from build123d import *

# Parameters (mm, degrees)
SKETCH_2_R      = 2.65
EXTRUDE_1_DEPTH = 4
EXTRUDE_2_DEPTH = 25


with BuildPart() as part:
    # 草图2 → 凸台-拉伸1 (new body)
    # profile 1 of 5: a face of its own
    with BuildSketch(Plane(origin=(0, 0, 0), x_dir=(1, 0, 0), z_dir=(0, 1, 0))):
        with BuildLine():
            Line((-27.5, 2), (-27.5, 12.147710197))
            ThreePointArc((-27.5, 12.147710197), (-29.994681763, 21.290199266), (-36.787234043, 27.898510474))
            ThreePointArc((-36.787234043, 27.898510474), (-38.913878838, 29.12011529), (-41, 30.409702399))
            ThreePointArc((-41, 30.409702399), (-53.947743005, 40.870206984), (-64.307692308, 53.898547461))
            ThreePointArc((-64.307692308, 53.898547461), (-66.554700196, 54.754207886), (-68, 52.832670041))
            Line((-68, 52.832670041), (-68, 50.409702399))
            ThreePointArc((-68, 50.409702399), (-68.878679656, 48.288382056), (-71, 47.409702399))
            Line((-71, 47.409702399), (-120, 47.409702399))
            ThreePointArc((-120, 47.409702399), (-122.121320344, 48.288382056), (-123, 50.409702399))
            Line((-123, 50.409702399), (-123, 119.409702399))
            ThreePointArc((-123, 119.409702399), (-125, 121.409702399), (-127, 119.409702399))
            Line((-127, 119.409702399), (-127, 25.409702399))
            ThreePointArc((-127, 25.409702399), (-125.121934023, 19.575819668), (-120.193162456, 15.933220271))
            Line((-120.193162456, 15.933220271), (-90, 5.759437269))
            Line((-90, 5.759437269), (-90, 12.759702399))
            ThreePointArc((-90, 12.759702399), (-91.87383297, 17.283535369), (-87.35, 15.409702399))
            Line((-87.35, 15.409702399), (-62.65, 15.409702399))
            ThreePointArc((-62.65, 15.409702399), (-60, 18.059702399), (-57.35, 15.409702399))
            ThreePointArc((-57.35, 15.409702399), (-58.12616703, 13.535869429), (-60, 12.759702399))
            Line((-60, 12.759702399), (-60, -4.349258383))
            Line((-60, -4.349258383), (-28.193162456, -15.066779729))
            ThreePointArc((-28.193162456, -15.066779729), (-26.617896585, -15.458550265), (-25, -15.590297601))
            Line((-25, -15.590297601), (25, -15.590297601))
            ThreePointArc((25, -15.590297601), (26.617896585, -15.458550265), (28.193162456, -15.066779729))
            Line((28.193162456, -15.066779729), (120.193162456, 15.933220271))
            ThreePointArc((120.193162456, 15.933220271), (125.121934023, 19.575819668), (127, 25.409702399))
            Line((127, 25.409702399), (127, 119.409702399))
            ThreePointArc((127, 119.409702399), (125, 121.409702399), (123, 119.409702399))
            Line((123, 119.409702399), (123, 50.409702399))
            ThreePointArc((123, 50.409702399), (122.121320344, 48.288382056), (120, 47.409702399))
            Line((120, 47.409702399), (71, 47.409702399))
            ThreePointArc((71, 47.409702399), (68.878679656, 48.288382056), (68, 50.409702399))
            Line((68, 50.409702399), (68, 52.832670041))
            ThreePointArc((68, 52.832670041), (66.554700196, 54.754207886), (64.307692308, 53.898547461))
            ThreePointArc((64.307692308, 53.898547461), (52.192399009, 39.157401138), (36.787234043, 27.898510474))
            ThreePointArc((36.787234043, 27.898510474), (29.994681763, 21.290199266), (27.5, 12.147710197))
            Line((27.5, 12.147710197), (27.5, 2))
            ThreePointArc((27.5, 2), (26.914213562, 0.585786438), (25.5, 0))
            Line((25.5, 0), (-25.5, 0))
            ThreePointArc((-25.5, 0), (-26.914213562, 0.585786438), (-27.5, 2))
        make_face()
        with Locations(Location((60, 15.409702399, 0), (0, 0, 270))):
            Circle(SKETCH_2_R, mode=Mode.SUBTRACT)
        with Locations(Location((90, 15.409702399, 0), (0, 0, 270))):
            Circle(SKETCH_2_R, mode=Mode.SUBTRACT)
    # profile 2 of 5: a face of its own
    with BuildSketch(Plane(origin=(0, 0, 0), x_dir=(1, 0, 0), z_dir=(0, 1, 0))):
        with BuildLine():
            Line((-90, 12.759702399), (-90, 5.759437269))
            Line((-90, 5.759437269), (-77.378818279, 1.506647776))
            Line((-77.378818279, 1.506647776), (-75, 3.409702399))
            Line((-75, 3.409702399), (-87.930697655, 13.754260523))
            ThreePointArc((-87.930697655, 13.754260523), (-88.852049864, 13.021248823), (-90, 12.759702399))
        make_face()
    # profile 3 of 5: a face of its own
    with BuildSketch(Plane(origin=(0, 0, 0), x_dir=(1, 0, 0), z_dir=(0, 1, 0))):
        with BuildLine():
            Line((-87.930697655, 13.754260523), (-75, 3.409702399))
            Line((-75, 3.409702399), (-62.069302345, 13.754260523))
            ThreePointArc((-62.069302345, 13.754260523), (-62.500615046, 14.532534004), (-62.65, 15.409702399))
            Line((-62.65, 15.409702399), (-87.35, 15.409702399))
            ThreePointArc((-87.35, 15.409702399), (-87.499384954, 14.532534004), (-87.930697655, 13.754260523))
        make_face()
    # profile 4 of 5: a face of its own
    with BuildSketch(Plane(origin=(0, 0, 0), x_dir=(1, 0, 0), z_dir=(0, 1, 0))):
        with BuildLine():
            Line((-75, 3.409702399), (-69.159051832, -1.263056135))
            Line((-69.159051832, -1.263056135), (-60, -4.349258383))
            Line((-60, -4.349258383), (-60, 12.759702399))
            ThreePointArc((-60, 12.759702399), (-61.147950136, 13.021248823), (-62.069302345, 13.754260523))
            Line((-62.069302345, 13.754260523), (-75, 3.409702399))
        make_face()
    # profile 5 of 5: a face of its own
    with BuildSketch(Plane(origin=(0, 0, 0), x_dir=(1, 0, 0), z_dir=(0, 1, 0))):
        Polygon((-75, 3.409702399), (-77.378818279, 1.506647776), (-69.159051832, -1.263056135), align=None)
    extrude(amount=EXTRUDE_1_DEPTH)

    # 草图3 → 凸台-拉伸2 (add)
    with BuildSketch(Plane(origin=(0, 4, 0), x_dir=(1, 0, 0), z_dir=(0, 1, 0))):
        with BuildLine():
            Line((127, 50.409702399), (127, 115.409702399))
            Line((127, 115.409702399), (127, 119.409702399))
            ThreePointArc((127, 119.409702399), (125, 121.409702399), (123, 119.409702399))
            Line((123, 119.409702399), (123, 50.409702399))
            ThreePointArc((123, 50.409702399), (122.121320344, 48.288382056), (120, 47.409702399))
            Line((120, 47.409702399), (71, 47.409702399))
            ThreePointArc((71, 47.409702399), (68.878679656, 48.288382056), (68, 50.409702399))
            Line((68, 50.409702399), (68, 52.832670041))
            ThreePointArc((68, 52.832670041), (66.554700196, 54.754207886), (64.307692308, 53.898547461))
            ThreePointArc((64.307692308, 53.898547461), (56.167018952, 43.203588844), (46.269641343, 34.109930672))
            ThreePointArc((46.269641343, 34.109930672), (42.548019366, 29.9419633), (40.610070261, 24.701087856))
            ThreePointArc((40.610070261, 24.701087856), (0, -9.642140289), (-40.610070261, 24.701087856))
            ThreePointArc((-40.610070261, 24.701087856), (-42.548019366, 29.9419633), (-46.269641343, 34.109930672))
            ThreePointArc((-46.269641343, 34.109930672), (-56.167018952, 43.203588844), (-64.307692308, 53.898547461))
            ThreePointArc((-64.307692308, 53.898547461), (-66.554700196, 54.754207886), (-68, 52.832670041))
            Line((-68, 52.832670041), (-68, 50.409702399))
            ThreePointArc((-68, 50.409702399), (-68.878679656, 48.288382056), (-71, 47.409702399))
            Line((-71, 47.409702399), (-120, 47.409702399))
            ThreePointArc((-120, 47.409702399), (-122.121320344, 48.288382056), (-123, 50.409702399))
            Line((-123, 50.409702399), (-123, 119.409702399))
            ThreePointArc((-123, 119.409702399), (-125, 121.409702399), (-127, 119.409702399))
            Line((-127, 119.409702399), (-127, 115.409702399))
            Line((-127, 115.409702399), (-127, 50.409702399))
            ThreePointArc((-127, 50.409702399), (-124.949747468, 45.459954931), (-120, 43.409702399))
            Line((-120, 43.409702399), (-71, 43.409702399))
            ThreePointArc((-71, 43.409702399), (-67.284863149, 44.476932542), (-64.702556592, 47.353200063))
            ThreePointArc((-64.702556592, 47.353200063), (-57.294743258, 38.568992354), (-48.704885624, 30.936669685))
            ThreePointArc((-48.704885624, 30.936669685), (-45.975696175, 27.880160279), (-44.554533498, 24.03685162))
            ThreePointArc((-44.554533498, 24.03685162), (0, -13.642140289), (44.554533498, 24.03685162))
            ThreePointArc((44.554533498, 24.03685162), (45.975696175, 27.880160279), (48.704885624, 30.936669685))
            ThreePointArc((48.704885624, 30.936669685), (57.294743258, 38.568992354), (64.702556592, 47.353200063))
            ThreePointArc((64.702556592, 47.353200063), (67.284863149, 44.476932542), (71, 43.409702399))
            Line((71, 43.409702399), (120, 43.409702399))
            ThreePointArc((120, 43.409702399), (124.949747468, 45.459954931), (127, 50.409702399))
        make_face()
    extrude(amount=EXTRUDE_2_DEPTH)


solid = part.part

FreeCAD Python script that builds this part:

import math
import FreeCAD as App
import Part
import Sketcher

V = App.Vector
Q = App.Units.Quantity

doc = App.newDocument("Part")
params = doc.addObject("Spreadsheet::Sheet", "Params")
for row, (alias, value) in enumerate([
    ("sketch1_radius", "18 mm"),
    ("sketch1_radius2", "76 mm"),
    ("sketch1_radius3", "2 mm"),
    ("sketch1_radius4", "3 mm"),
    ("sketch1_radius5", "10 mm"),
    ("pad1_length", "4 mm"),
    ("sketch2_radius", "2 mm"),
    ("sketch2_radius2", "3 mm"),
    ("sketch2_radius3", "76 mm"),
    ("sketch2_radius4", "15 mm"),
    ("sketch2_radius5", "80 mm"),
    ("pad2_length", "25 mm"),
], start=1):
    params.set(f"A{row}", alias)
    params.set(f"B{row}", "=" + value)
    params.setAlias(f"B{row}", alias)

body = doc.addObject("PartDesign::Body", "Body")

sketch1 = body.newObject("Sketcher::SketchObject", "Sketch")
sketch1.AttachmentSupport = (doc.getObject("XZ_Plane"), [""])
sketch1.MapMode = "FlatFace"
sketch1.addGeometry([
    Part.LineSegment(V(-27.5, -2, 0), V(-27.5, -12.1, 0)),
    Part.ArcOfCircle(Part.Circle(V(-45.5, -12.1, 0), V(0, 0, 1), 18), math.radians(-61), math.radians(0)),
    Part.ArcOfCircle(Part.Circle(V(0, -94.4, 0), V(0, 0, 1), 76), math.radians(118.95), math.radians(122.65)),
    Part.ArcOfCircle(Part.Circle(V(0, -94.4, 0), V(0, 0, 1), 76), math.radians(123), math.radians(148)),
    Part.ArcOfCircle(Part.Circle(V(-66, -52.8, 0), V(0, 0, 1), 2), math.radians(-180), math.radians(-32)),
    Part.LineSegment(V(-68, -52.8, 0), V(-68, -50.4, 0)),
    Part.ArcOfCircle(Part.Circle(V(-71, -50.4, 0), V(0, 0, 1), 3), math.radians(0), math.radians(90)),
    Part.LineSegment(V(-71, -47.4, 0), V(-120, -47.4, 0)),
    Part.ArcOfCircle(Part.Circle(V(-120, -50.4, 0), V(0, 0, 1), 3), math.radians(90), math.radians(180)),
    Part.LineSegment(V(-123, -50.4, 0), V(-123, -119.4, 0)),
    Part.ArcOfCircle(Part.Circle(V(-125, -119.4, 0), V(0, 0, 1), 2), math.radians(180), math.radians(360)),
    Part.LineSegment(V(-127, -119.4, 0), V(-127, -25.4, 0)),
    Part.ArcOfCircle(Part.Circle(V(-117, -25.4, 0), V(0, 0, 1), 10), math.radians(109), math.radians(180)),
    Part.LineSegment(V(-120.2, -15.9, 0), V(-90, -5.8, 0)),
    Part.LineSegment(V(-90, -5.8, 0), V(-77.4, -1.5, 0)),
    Part.LineSegment(V(-77.4, -1.5, 0), V(-69.2, 1.3, 0)),
    Part.LineSegment(V(-69.2, 1.3, 0), V(-60, 4.3, 0)),
    Part.LineSegment(V(-60, 4.3, 0), V(-28.2, 15.1, 0)),
    Part.ArcOfCircle(Part.Circle(V(-25, 5.6, 0), V(0, 0, 1), 10), math.radians(90), math.radians(108.62)),
    Part.LineSegment(V(-25, 15.6, 0), V(25, 15.6, 0)),
    Part.ArcOfCircle(Part.Circle(V(25, 5.6, 0), V(0, 0, 1), 10), math.radians(71.38), math.radians(90)),
    Part.LineSegment(V(28.2, 15.1, 0), V(120.2, -15.9, 0)),
    Part.ArcOfCircle(Part.Circle(V(117, -25.4, 0), V(0, 0, 1), 10), math.radians(0), math.radians(71)),
    Part.LineSegment(V(127, -25.4, 0), V(127, -119.4, 0)),
    Part.ArcOfCircle(Part.Circle(V(125, -119.4, 0), V(0, 0, 1), 2), math.radians(180), math.radians(360)),
    Part.LineSegment(V(123, -119.4, 0), V(123, -50.4, 0)),
    Part.ArcOfCircle(Part.Circle(V(120, -50.4, 0), V(0, 0, 1), 3), math.radians(0), math.radians(90)),
    Part.LineSegment(V(120, -47.4, 0), V(71, -47.4, 0)),
    Part.ArcOfCircle(Part.Circle(V(71, -50.4, 0), V(0, 0, 1), 3), math.radians(90), math.radians(180)),
    Part.LineSegment(V(68, -50.4, 0), V(68, -52.8, 0)),
    Part.ArcOfCircle(Part.Circle(V(66, -52.8, 0), V(0, 0, 1), 2), math.radians(-148), math.radians(0)),
    Part.ArcOfCircle(Part.Circle(V(0, -94.4, 0), V(0, 0, 1), 76), math.radians(32), math.radians(61)),
    Part.ArcOfCircle(Part.Circle(V(45.5, -12.1, 0), V(0, 0, 1), 18), math.radians(180), math.radians(241)),
    Part.LineSegment(V(27.5, -12.1, 0), V(27.5, -2, 0)),
    Part.ArcOfCircle(Part.Circle(V(25.5, -2, 0), V(0, 0, 1), 2), math.radians(0), math.radians(90)),
    Part.LineSegment(V(25.5, 0, 0), V(-25.5, 0, 0)),
    Part.ArcOfCircle(Part.Circle(V(-25.5, -2, 0), V(0, 0, 1), 2), math.radians(90), math.radians(180)),
    Part.ArcOfCircle(Part.Circle(V(-90, -15.4, 0), V(0, 0, 1), 2.6), math.radians(90), math.radians(360)),
    Part.ArcOfCircle(Part.Circle(V(-90, -15.4, 0), V(0, 0, 1), 2.6), math.radians(0), math.radians(39)),
    Part.ArcOfCircle(Part.Circle(V(-90, -15.4, 0), V(0, 0, 1), 2.7), math.radians(39), math.radians(90)),
    Part.ArcOfCircle(Part.Circle(V(-60, -15.4, 0), V(0, 0, 1), 2.6), math.radians(180), math.radians(360)),
    Part.ArcOfCircle(Part.Circle(V(-60, -15.4, 0), V(0, 0, 1), 2.6), math.radians(0), math.radians(90)),
    Part.ArcOfCircle(Part.Circle(V(-60, -15.4, 0), V(0, 0, 1), 2.7), math.radians(90), math.radians(141)),
    Part.ArcOfCircle(Part.Circle(V(-60, -15.4, 0), V(0, 0, 1), 2.6), math.radians(141), math.radians(180)),
    Part.Circle(V(60, -15.4, 0), V(0, 0, 1), 2.6),
    Part.Circle(V(90, -15.4, 0), V(0, 0, 1), 2.6),
], False)
sketch1.addConstraint([
    Sketcher.Constraint("Tangent", 0, 2, 1, 2),
    Sketcher.Constraint("Tangent", 1, 1, 2, 1),
    Sketcher.Constraint("Tangent", 2, 2, 3, 1),
    Sketcher.Constraint("Tangent", 3, 2, 4, 2),
    Sketcher.Constraint("Tangent", 4, 1, 5, 1),
    Sketcher.Constraint("Tangent", 5, 2, 6, 1),
    Sketcher.Constraint("Tangent", 6, 2, 7, 1),
    Sketcher.Constraint("Tangent", 7, 2, 8, 1),
    Sketcher.Constraint("Tangent", 8, 2, 9, 1),
    Sketcher.Constraint("Tangent", 9, 2, 10, 2),
    Sketcher.Constraint("Tangent", 10, 1, 11, 1),
    Sketcher.Constraint("Tangent", 11, 2, 12, 2),
    Sketcher.Constraint("Tangent", 12, 1, 13, 1),
    Sketcher.Constraint("Coincident", 13, 2, 14, 1),
    Sketcher.Constraint("Coincident", 14, 2, 15, 1),
    Sketcher.Constraint("Coincident", 15, 2, 16, 1),
    Sketcher.Constraint("Coincident", 16, 2, 17, 1),
    Sketcher.Constraint("Tangent", 17, 2, 18, 2),
    Sketcher.Constraint("Tangent", 18, 1, 19, 1),
    Sketcher.Constraint("Tangent", 19, 2, 20, 2),
    Sketcher.Constraint("Tangent", 20, 1, 21, 1),
    Sketcher.Constraint("Tangent", 21, 2, 22, 2),
    Sketcher.Constraint("Tangent", 22, 1, 23, 1),
    Sketcher.Constraint("Tangent", 23, 2, 24, 2),
    Sketcher.Constraint("Tangent", 24, 1, 25, 1),
    Sketcher.Constraint("Tangent", 25, 2, 26, 1),
    Sketcher.Constraint("Tangent", 26, 2, 27, 1),
    Sketcher.Constraint("Tangent", 27, 2, 28, 1),
    Sketcher.Constraint("Tangent", 28, 2, 29, 1),
    Sketcher.Constraint("Tangent", 29, 2, 30, 2),
    Sketcher.Constraint("Tangent", 30, 1, 31, 1),
    Sketcher.Constraint("Tangent", 31, 2, 32, 2),
    Sketcher.Constraint("Tangent", 32, 1, 33, 1),
    Sketcher.Constraint("Tangent", 33, 2, 34, 1),
    Sketcher.Constraint("Tangent", 34, 2, 35, 1),
    Sketcher.Constraint("Tangent", 35, 2, 36, 1),
    Sketcher.Constraint("Tangent", 36, 2, 0, 1),
    Sketcher.Constraint("Tangent", 37, 2, 38, 1),
    Sketcher.Constraint("Tangent", 38, 2, 39, 1),
    Sketcher.Constraint("Tangent", 39, 2, 37, 1),
    Sketcher.Constraint("Tangent", 40, 2, 41, 1),
    Sketcher.Constraint("Tangent", 41, 2, 42, 1),
    Sketcher.Constraint("Tangent", 42, 2, 43, 1),
    Sketcher.Constraint("Tangent", 43, 2, 40, 1),
    Sketcher.Constraint("Vertical", 0),
    Sketcher.Constraint("Vertical", 5),
    Sketcher.Constraint("Horizontal", 7),
    Sketcher.Constraint("Vertical", 9),
    Sketcher.Constraint("Vertical", 11),
    Sketcher.Constraint("Horizontal", 19),
    Sketcher.Constraint("Vertical", 23),
    Sketcher.Constraint("Vertical", 25),
    Sketcher.Constraint("Horizontal", 27),
    Sketcher.Constraint("Vertical", 29),
    Sketcher.Constraint("Vertical", 33),
    Sketcher.Constraint("Horizontal", 35),
    Sketcher.Constraint("Coincident", 31, 3, 2, 3),
    Sketcher.Constraint("Equal", 2, 3),
    Sketcher.Constraint("Equal", 6, 8),
    Sketcher.Constraint("Equal", 4, 10),
    Sketcher.Constraint("Equal", 12, 18),
    Sketcher.Constraint("Equal", 18, 20),
    Sketcher.Constraint("Equal", 20, 22),
    Sketcher.Constraint("Equal", 10, 24),
    Sketcher.Constraint("Equal", 8, 26),
    Sketcher.Constraint("Equal", 26, 28),
    Sketcher.Constraint("Equal", 24, 30),
    Sketcher.Constraint("Equal", 3, 31),
    Sketcher.Constraint("Equal", 1, 32),
    Sketcher.Constraint("Equal", 30, 34),
    Sketcher.Constraint("Equal", 34, 36),
    Sketcher.Constraint("Equal", 39, 40),
    Sketcher.Constraint("Equal", 40, 41),
    Sketcher.Constraint("Equal", 43, 44),
    Sketcher.Constraint("Equal", 44, 45),
    Sketcher.Constraint("Symmetric", 34, 2, 35, 2, -1, 1),
    Sketcher.Constraint("Symmetric", 12, 3, 22, 3, -2),
    Sketcher.Constraint("Symmetric", 6, 3, 28, 3, -2),
    Sketcher.Constraint("Symmetric", 40, 3, 44, 3, -2),
    Sketcher.Constraint("Symmetric", 37, 3, 45, 3, -2),
    Sketcher.Constraint("Symmetric", 17, 2, 20, 1, -2),
    Sketcher.Constraint("PointOnObject", 2, 3, -2),
    Sketcher.Constraint("Parallel", 13, 14),
    Sketcher.Constraint("Parallel", 14, 15),
    Sketcher.Constraint("Parallel", 15, 16),
    Sketcher.Constraint("Horizontal", 10, 3, 24, 3),
    Sketcher.Constraint("Horizontal", 39, 3, 40, 3),
    Sketcher.Constraint("Horizontal", 45, 3, 37, 2),
    Sketcher.Constraint("Horizontal", 37, 2, 40, 2),
    Sketcher.Constraint("Horizontal", 38, 2, 42, 2),
    Sketcher.Constraint("Horizontal", 40, 2, 43, 2),
    Sketcher.Constraint("Vertical", 39, 3, 13, 2),
    Sketcher.Constraint("Vertical", 43, 3, 16, 2),
    Sketcher.Constraint("Vertical", 13, 2, 39, 2),
    Sketcher.Constraint("Vertical", 16, 2, 41, 2),
    Sketcher.Constraint("Radius", 1, Q("18 mm")),
    Sketcher.Constraint("Radius", 2, Q("76 mm")),
    Sketcher.Constraint("Radius", 4, Q("2 mm")),
    Sketcher.Constraint("Radius", 6, Q("3 mm")),
    Sketcher.Constraint("Radius", 12, Q("10 mm")),
    Sketcher.Constraint("Diameter", 44, Q("5.3 mm")),
    Sketcher.Constraint("DistanceX", 7, 2, 7, 1, Q("49 mm")),
    Sketcher.Constraint("DistanceX", 19, 1, 19, 2, Q("50 mm")),
    Sketcher.Constraint("DistanceX", 35, 2, 35, 1, Q("51 mm")),
    Sketcher.Constraint("DistanceY", 9, 2, 9, 1, Q("69 mm")),
    Sketcher.Constraint("DistanceY", 11, 1, 11, 2, Q("94 mm")),
    Sketcher.Constraint("DistanceX", 4, 3, -1, 1, Q("66 mm")),
    Sketcher.Constraint("DistanceX", 37, 3, -1, 1, Q("90 mm")),
    Sketcher.Constraint("DistanceX", 40, 3, -1, 1, Q("60 mm")),
    Sketcher.Constraint("DistanceX", 2, 2, -1, 1, Q("41 mm")),
    Sketcher.Constraint("DistanceY", 0, 2, 0, 1, Q("10.14771 mm")),
    Sketcher.Constraint("Distance", 13, Q("31.861151 mm")),
    Sketcher.Constraint("Distance", 15, Q("8.673858 mm")),
    Sketcher.Constraint("DistanceY", 5, 1, 5, 2, Q("2.422968 mm")),
    Sketcher.Constraint("DistanceX", 14, 2, -1, 1, Q("77.378818 mm")),
    Sketcher.Constraint("DistanceY", 38, 2, -1, 1, Q("13.754261 mm")),
    Sketcher.Constraint("DistanceY", 37, 3, -1, 1, Q("15.409702 mm")),
])
sketch1.setExpression("Constraints[95]", "Params.sketch1_radius")
sketch1.setExpression("Constraints[96]", "Params.sketch1_radius2")
sketch1.setExpression("Constraints[97]", "Params.sketch1_radius3")
sketch1.setExpression("Constraints[98]", "Params.sketch1_radius4")
sketch1.setExpression("Constraints[99]", "Params.sketch1_radius5")
pad1 = body.newObject("PartDesign::Pad", "Pad")
pad1.Profile = sketch1
pad1.setExpression("Length", "Params.pad1_length")
pad1.Reversed = True

sketch2 = body.newObject("Sketcher::SketchObject", "Sketch001")
sketch2.AttachmentSupport = (doc.getObject("XZ_Plane"), [""])
sketch2.MapMode = "FlatFace"
sketch2.AttachmentOffset = App.Placement(V(0, 0, -4), App.Rotation())
sketch2.addGeometry([
    Part.LineSegment(V(127, -50.4, 0), V(127, -119.4, 0)),
    Part.ArcOfCircle(Part.Circle(V(125, -119.4, 0), V(0, 0, 1), 2), math.radians(180), math.radians(360)),
    Part.LineSegment(V(123, -119.4, 0), V(123, -50.4, 0)),
    Part.ArcOfCircle(Part.Circle(V(120, -50.4, 0), V(0, 0, 1), 3), math.radians(0), math.radians(90)),
    Part.LineSegment(V(120, -47.4, 0), V(71, -47.4, 0)),
    Part.ArcOfCircle(Part.Circle(V(71, -50.4, 0), V(0, 0, 1), 3), math.radians(90), math.radians(180)),
    Part.LineSegment(V(68, -50.4, 0), V(68, -52.8, 0)),
    Part.ArcOfCircle(Part.Circle(V(66, -52.8, 0), V(0, 0, 1), 2), math.radians(-148), math.radians(0)),
    Part.ArcOfCircle(Part.Circle(V(0, -94.4, 0), V(0, 0, 1), 76), math.radians(32), math.radians(52)),
    Part.ArcOfCircle(Part.Circle(V(55.4, -22.2, 0), V(0, 0, 1), 15), math.radians(-170), math.radians(-128)),
    Part.ArcOfCircle(Part.Circle(V(0, -31.5, 0), V(0, 0, 1), 41.2), math.radians(10), math.radians(170)),
    Part.ArcOfCircle(Part.Circle(V(-55.4, -22.2, 0), V(0, 0, 1), 15), math.radians(-52), math.radians(-10)),
    Part.ArcOfCircle(Part.Circle(V(0, -94.4, 0), V(0, 0, 1), 76), math.radians(128), math.radians(148)),
    Part.ArcOfCircle(Part.Circle(V(-66, -52.8, 0), V(0, 0, 1), 2), math.radians(-180), math.radians(-32)),
    Part.LineSegment(V(-68, -52.8, 0), V(-68, -50.4, 0)),
    Part.ArcOfCircle(Part.Circle(V(-71, -50.4, 0), V(0, 0, 1), 3), math.radians(0), math.radians(90)),
    Part.LineSegment(V(-71, -47.4, 0), V(-120, -47.4, 0)),
    Part.ArcOfCircle(Part.Circle(V(-120, -50.4, 0), V(0, 0, 1), 3), math.radians(90), math.radians(180)),
    Part.LineSegment(V(-123, -50.4, 0), V(-123, -119.4, 0)),
    Part.ArcOfCircle(Part.Circle(V(-125, -119.4, 0), V(0, 0, 1), 2), math.radians(180), math.radians(360)),
    Part.LineSegment(V(-127, -119.4, 0), V(-127, -50.4, 0)),
    Part.ArcOfCircle(Part.Circle(V(-120, -50.4, 0), V(0, 0, 1), 7), math.radians(90), math.radians(180)),
    Part.LineSegment(V(-120, -43.4, 0), V(-71, -43.4, 0)),
    Part.ArcOfCircle(Part.Circle(V(-71, -50.4, 0), V(0, 0, 1), 7), math.radians(26), math.radians(90)),
    Part.ArcOfCircle(Part.Circle(V(0, -94.4, 0), V(0, 0, 1), 80), math.radians(127.5), math.radians(143.98)),
    Part.ArcOfCircle(Part.Circle(V(-55.4, -22.2, 0), V(0, 0, 1), 11), math.radians(-52), math.radians(-10)),
    Part.ArcOfCircle(Part.Circle(V(0, -31.5, 0), V(0, 0, 1), 45.2), math.radians(10), math.radians(170)),
    Part.ArcOfCircle(Part.Circle(V(55.4, -22.2, 0), V(0, 0, 1), 11), math.radians(-170), math.radians(-128)),
    Part.ArcOfCircle(Part.Circle(V(0, -94.4, 0), V(0, 0, 1), 80), math.radians(36.02), math.radians(52.5)),
    Part.ArcOfCircle(Part.Circle(V(71, -50.4, 0), V(0, 0, 1), 7), math.radians(90), math.radians(154)),
    Part.LineSegment(V(71, -43.4, 0), V(120, -43.4, 0)),
    Part.ArcOfCircle(Part.Circle(V(120, -50.4, 0), V(0, 0, 1), 7), math.radians(0), math.radians(90)),
], False)
sketch2.addConstraint([
    Sketcher.Constraint("Tangent", 0, 2, 1, 2),
    Sketcher.Constraint("Tangent", 1, 1, 2, 1),
    Sketcher.Constraint("Tangent", 2, 2, 3, 1),
    Sketcher.Constraint("Tangent", 3, 2, 4, 1),
    Sketcher.Constraint("Tangent", 4, 2, 5, 1),
    Sketcher.Constraint("Tangent", 5, 2, 6, 1),
    Sketcher.Constraint("Tangent", 6, 2, 7, 2),
    Sketcher.Constraint("Tangent", 7, 1, 8, 1),
    Sketcher.Constraint("Tangent", 8, 2, 9, 2),
    Sketcher.Constraint("Tangent", 9, 1, 10, 1),
    Sketcher.Constraint("Tangent", 10, 2, 11, 2),
    Sketcher.Constraint("Tangent", 11, 1, 12, 1),
    Sketcher.Constraint("Tangent", 12, 2, 13, 2),
    Sketcher.Constraint("Tangent", 13, 1, 14, 1),
    Sketcher.Constraint("Tangent", 14, 2, 15, 1),
    Sketcher.Constraint("Tangent", 15, 2, 16, 1),
    Sketcher.Constraint("Tangent", 16, 2, 17, 1),
    Sketcher.Constraint("Tangent", 17, 2, 18, 1),
    Sketcher.Constraint("Tangent", 18, 2, 19, 2),
    Sketcher.Constraint("Tangent", 19, 1, 20, 1),
    Sketcher.Constraint("Tangent", 20, 2, 21, 2),
    Sketcher.Constraint("Tangent", 21, 1, 22, 1),
    Sketcher.Constraint("Tangent", 22, 2, 23, 2),
    Sketcher.Constraint("Coincident", 23, 1, 24, 2),
    Sketcher.Constraint("Tangent", 24, 1, 25, 1),
    Sketcher.Constraint("Tangent", 25, 2, 26, 2),
    Sketcher.Constraint("Tangent", 26, 1, 27, 1),
    Sketcher.Constraint("Tangent", 27, 2, 28, 2),
    Sketcher.Constraint("Coincident", 28, 1, 29, 2),
    Sketcher.Constraint("Tangent", 29, 1, 30, 1),
    Sketcher.Constraint("Tangent", 30, 2, 31, 2),
    Sketcher.Constraint("Tangent", 31, 1, 0, 1),
    Sketcher.Constraint("Vertical", 0),
    Sketcher.Constraint("Vertical", 2),
    Sketcher.Constraint("Horizontal", 4),
    Sketcher.Constraint("Vertical", 6),
    Sketcher.Constraint("Vertical", 14),
    Sketcher.Constraint("Horizontal", 16),
    Sketcher.Constraint("Vertical", 18),
    Sketcher.Constraint("Vertical", 20),
    Sketcher.Constraint("Horizontal", 22),
    Sketcher.Constraint("Horizontal", 30),
    Sketcher.Constraint("Coincident", 12, 3, 8, 3),
    Sketcher.Constraint("Coincident", 21, 3, 17, 3),
    Sketcher.Constraint("Coincident", 23, 3, 15, 3),
    Sketcher.Constraint("Coincident", 24, 3, 8, 3),
    Sketcher.Constraint("Coincident", 25, 3, 11, 3),
    Sketcher.Constraint("Coincident", 26, 3, 10, 3),
    Sketcher.Constraint("Coincident", 27, 3, 9, 3),
    Sketcher.Constraint("Coincident", 28, 3, 8, 3),
    Sketcher.Constraint("Coincident", 29, 3, 5, 3),
    Sketcher.Constraint("Coincident", 31, 3, 3, 3),
    Sketcher.Constraint("Equal", 3, 5),
    Sketcher.Constraint("Equal", 1, 7),
    Sketcher.Constraint("Equal", 9, 11),
    Sketcher.Constraint("Equal", 8, 12),
    Sketcher.Constraint("Equal", 7, 13),
    Sketcher.Constraint("Equal", 5, 15),
    Sketcher.Constraint("Equal", 15, 17),
    Sketcher.Constraint("Equal", 13, 19),
    Sketcher.Constraint("Symmetric", 9, 3, 11, 3, -2),
    Sketcher.Constraint("Symmetric", 5, 3, 15, 3, -2),
    Sketcher.Constraint("Symmetric", 1, 3, 19, 3, -2),
    Sketcher.Constraint("Radius", 1, Q("2 mm")),
    Sketcher.Constraint("Radius", 3, Q("3 mm")),
    Sketcher.Constraint("Radius", 8, Q("76 mm")),
    Sketcher.Constraint("Radius", 9, Q("15 mm")),
    Sketcher.Constraint("Radius", 24, Q("80 mm")),
    Sketcher.Constraint("DistanceX", 4, 2, 4, 1, Q("49 mm")),
    Sketcher.Constraint("DistanceY", 0, 2, 0, 1, Q("69 mm")),
    Sketcher.Constraint("DistanceX", -1, 1, 1, 3, Q("125 mm")),
    Sketcher.Constraint("Radius", 10, Q("41.181847 mm")),
    Sketcher.Constraint("DistanceY", 9, 3, -1, 1, Q("22.210202 mm")),
    Sketcher.Constraint("DistanceY", 23, 1, -1, 1, Q("47.3532 mm")),
    Sketcher.Constraint("DistanceY", 5, 3, 9, 3, Q("28.1995 mm")),
])
sketch2.setExpression("Constraints[63]", "Params.sketch2_radius")
sketch2.setExpression("Constraints[64]", "Params.sketch2_radius2")
sketch2.setExpression("Constraints[65]", "Params.sketch2_radius3")
sketch2.setExpression("Constraints[66]", "Params.sketch2_radius4")
sketch2.setExpression("Constraints[67]", "Params.sketch2_radius5")
pad2 = body.newObject("PartDesign::Pad", "Pad001")
pad2.Profile = sketch2
pad2.setExpression("Length", "Params.pad2_length")
pad2.Reversed = True

doc.recompute()
